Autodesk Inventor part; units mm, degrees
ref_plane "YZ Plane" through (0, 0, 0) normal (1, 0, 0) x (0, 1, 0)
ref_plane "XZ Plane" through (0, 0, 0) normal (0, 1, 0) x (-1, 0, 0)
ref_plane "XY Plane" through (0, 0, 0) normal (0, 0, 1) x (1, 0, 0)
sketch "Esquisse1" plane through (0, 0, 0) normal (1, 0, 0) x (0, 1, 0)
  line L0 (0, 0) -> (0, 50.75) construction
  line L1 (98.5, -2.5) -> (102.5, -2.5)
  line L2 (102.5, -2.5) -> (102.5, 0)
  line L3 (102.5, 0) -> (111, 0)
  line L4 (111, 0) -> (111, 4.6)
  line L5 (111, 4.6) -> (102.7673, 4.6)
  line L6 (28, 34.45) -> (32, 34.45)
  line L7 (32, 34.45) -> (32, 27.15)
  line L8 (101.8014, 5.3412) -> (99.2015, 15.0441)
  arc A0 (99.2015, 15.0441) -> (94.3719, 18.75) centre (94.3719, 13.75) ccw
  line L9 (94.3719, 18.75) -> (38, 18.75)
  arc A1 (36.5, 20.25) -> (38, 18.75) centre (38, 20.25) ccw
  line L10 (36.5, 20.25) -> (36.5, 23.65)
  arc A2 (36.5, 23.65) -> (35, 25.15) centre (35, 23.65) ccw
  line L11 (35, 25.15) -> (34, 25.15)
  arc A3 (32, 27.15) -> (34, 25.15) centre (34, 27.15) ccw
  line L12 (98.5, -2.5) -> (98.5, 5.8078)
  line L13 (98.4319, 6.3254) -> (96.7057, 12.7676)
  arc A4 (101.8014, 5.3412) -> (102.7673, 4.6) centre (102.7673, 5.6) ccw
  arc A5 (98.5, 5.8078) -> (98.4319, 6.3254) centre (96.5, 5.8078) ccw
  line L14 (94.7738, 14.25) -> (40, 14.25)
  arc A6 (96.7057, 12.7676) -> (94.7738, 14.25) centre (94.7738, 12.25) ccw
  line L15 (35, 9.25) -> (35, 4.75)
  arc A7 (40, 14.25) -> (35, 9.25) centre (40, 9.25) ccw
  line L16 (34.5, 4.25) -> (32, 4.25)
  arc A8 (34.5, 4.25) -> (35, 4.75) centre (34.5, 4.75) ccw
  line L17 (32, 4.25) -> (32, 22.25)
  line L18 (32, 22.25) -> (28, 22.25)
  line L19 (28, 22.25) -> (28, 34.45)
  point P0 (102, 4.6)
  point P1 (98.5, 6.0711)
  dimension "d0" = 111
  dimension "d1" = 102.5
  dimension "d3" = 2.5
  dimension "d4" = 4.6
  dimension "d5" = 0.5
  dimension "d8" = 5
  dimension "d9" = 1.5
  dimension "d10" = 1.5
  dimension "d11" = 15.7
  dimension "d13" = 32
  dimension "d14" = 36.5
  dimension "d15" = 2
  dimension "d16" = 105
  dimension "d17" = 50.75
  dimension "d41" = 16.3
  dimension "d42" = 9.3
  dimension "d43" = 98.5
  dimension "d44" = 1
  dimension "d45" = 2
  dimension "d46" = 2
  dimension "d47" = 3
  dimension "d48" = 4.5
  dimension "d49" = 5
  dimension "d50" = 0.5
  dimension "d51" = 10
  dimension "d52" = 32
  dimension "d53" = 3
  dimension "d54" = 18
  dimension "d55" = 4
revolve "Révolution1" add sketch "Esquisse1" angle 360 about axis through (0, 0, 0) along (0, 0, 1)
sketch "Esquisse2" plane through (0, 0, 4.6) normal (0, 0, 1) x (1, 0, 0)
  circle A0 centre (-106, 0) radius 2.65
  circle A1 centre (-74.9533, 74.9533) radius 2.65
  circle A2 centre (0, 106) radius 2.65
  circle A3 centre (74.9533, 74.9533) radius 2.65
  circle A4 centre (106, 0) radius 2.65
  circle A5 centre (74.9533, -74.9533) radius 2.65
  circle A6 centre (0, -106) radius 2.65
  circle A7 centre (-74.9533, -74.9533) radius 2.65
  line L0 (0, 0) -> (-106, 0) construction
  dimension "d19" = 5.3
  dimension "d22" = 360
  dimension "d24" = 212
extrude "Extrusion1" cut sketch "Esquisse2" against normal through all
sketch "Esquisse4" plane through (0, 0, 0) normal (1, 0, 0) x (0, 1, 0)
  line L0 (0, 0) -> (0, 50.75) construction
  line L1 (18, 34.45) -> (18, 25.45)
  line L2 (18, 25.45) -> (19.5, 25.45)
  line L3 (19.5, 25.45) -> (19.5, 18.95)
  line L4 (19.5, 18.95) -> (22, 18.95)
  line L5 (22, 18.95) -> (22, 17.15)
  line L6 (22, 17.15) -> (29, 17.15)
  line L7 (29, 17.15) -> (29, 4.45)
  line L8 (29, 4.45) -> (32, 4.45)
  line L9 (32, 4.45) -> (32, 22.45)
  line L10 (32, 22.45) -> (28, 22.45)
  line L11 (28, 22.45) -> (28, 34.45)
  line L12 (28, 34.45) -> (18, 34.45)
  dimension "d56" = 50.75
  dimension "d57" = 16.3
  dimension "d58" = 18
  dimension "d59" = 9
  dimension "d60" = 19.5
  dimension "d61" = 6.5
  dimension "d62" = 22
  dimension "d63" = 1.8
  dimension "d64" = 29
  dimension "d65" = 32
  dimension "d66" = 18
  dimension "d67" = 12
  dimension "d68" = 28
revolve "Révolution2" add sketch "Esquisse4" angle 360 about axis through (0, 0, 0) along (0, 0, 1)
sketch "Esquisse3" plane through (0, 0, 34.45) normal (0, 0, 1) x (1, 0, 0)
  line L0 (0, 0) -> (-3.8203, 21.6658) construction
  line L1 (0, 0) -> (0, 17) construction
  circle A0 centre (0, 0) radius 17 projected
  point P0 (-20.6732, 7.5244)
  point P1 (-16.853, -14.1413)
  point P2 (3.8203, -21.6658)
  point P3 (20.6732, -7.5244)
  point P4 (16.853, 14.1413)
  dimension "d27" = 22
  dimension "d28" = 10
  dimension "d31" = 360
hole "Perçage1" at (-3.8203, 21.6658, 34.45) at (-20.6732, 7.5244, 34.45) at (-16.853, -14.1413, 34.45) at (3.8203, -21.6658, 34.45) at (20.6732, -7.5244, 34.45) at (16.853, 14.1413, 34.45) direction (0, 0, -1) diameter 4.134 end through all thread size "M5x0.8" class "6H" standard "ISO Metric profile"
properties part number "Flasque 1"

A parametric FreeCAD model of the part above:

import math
import FreeCAD as App
import Part
import Sketcher

V = App.Vector
Q = App.Units.Quantity


def add_polygon(sketch, points):
    """Adds a closed chain of lines whose ends are joined by coincident constraints."""
    first, n = sketch.GeometryCount, len(points)
    for a, b in zip(points, points[1:] + points[:1]):
        sketch.addGeometry(Part.LineSegment(App.Vector(*a, 0), App.Vector(*b, 0)), False)
    for i in range(n):
        sketch.addConstraint(Sketcher.Constraint("Coincident", first + i, 2, first + (i + 1) % n, 1))

doc = App.newDocument("Part")
params = doc.addObject("Spreadsheet::Sheet", "Params")
for row, (alias, value) in enumerate([
    ("sketch1_radius", "1 mm"),
    ("sketch1_radius2", "5 mm"),
    ("sketch1_radius3", "2 mm"),
    ("sketch1_radius4", "1.5 mm"),
    ("sketch1_radius5", "0.5 mm"),
    ("revolution_angle", "360 deg"),
    ("sketch2_diameter", "5.3 mm"),
    ("sketch3_height", "9 mm"),
    ("sketch3_height2", "18 mm"),
    ("sketch3_height3", "12 mm"),
    ("sketch3_height4", "6.5 mm"),
    ("sketch3_height5", "1.8 mm"),
    ("revolution2_angle", "360 deg"),
    ("hole_diameter", "4.134 mm"),
], start=1):
    params.set(f"A{row}", alias)
    params.set(f"B{row}", "=" + value)
    params.setAlias(f"B{row}", alias)

body = doc.addObject("PartDesign::Body", "Body")

# Sketch on YZ plane
sketch1 = doc.addObject("Sketcher::SketchObject", "Sketch")
body.addObject(sketch1)
sketch1.AttachmentSupport = (doc.YZ_Plane, [""])
sketch1.MapMode = "FlatFace"
sketch1.addGeometry(Part.LineSegment(V(98.5, 5.8078, 0), V(98.5, -2.5, 0)), False)
sketch1.addGeometry(Part.LineSegment(V(98.5, -2.5, 0), V(102.5, -2.5, 0)), False)
sketch1.addGeometry(Part.LineSegment(V(102.5, -2.5, 0), V(102.5, 0, 0)), False)
sketch1.addGeometry(Part.LineSegment(V(102.5, 0, 0), V(111, 0, 0)), False)
sketch1.addGeometry(Part.LineSegment(V(111, 0, 0), V(111, 4.6, 0)), False)
sketch1.addGeometry(Part.LineSegment(V(111, 4.6, 0), V(102.7673, 4.6, 0)), False)
sketch1.addGeometry(Part.ArcOfCircle(Part.Circle(V(102.7673, 5.6, 0), V(0, 0, 1), 0.99997), math.radians(-165.000671), math.radians(-90)), False)
sketch1.addGeometry(Part.LineSegment(V(101.8014, 5.3412, 0), V(99.2015, 15.0441, 0)), False)
sketch1.addGeometry(Part.ArcOfCircle(Part.Circle(V(94.3719, 13.75, 0), V(0, 0, 1), 4.999973), math.radians(15.000139), math.radians(90)), False)
sketch1.addGeometry(Part.LineSegment(V(94.3719, 18.75, 0), V(38, 18.75, 0)), False)
sketch1.addGeometry(Part.ArcOfCircle(Part.Circle(V(38, 20.25, 0), V(0, 0, 1), 1.5), math.radians(180), math.radians(270)), False)
sketch1.addGeometry(Part.LineSegment(V(36.5, 20.25, 0), V(36.5, 23.65, 0)), False)
sketch1.addGeometry(Part.ArcOfCircle(Part.Circle(V(35, 23.65, 0), V(0, 0, 1), 1.5), math.radians(0), math.radians(90)), False)
sketch1.addGeometry(Part.LineSegment(V(35, 25.15, 0), V(34, 25.15, 0)), False)
sketch1.addGeometry(Part.ArcOfCircle(Part.Circle(V(34, 27.15, 0), V(0, 0, 1), 2), math.radians(180), math.radians(270)), False)
sketch1.addGeometry(Part.LineSegment(V(32, 27.15, 0), V(32, 34.45, 0)), False)
sketch1.addGeometry(Part.LineSegment(V(32, 34.45, 0), V(28, 34.45, 0)), False)
sketch1.addGeometry(Part.LineSegment(V(28, 34.45, 0), V(28, 22.25, 0)), False)
sketch1.addGeometry(Part.LineSegment(V(28, 22.25, 0), V(32, 22.25, 0)), False)
sketch1.addGeometry(Part.LineSegment(V(32, 22.25, 0), V(32, 4.25, 0)), False)
sketch1.addGeometry(Part.LineSegment(V(32, 4.25, 0), V(34.5, 4.25, 0)), False)
sketch1.addGeometry(Part.ArcOfCircle(Part.Circle(V(34.5, 4.75, 0), V(0, 0, 1), 0.5), math.radians(-90), math.radians(0)), False)
sketch1.addGeometry(Part.LineSegment(V(35, 4.75, 0), V(35, 9.25, 0)), False)
sketch1.addGeometry(Part.ArcOfCircle(Part.Circle(V(40, 9.25, 0), V(0, 0, 1), 5), math.radians(90), math.radians(180)), False)
sketch1.addGeometry(Part.LineSegment(V(40, 14.25, 0), V(94.7738, 14.25, 0)), False)
sketch1.addGeometry(Part.ArcOfCircle(Part.Circle(V(94.7738, 12.25, 0), V(0, 0, 1), 2.000037), math.radians(14.998588), math.radians(90)), False)
sketch1.addGeometry(Part.LineSegment(V(96.7057, 12.7676, 0), V(98.4319, 6.3254, 0)), False)
sketch1.addGeometry(Part.ArcOfCircle(Part.Circle(V(96.497844, 5.807659, 0), V(0, 0, 1), 2.002156), math.radians(0.004043), math.radians(14.986526)), False)
sketch1.addConstraint(Sketcher.Constraint("Coincident", 0, 2, 1, 1))
sketch1.addConstraint(Sketcher.Constraint("Coincident", 1, 2, 2, 1))
sketch1.addConstraint(Sketcher.Constraint("Coincident", 2, 2, 3, 1))
sketch1.addConstraint(Sketcher.Constraint("Coincident", 3, 2, 4, 1))
sketch1.addConstraint(Sketcher.Constraint("Coincident", 4, 2, 5, 1))
sketch1.addConstraint(Sketcher.Constraint("Tangent", 5, 2, 6, 2))
sketch1.addConstraint(Sketcher.Constraint("Tangent", 6, 1, 7, 1))
sketch1.addConstraint(Sketcher.Constraint("Tangent", 7, 2, 8, 1))
sketch1.addConstraint(Sketcher.Constraint("Tangent", 8, 2, 9, 1))
sketch1.addConstraint(Sketcher.Constraint("Tangent", 9, 2, 10, 2))
sketch1.addConstraint(Sketcher.Constraint("Tangent", 10, 1, 11, 1))
sketch1.addConstraint(Sketcher.Constraint("Tangent", 11, 2, 12, 1))
sketch1.addConstraint(Sketcher.Constraint("Tangent", 12, 2, 13, 1))
sketch1.addConstraint(Sketcher.Constraint("Tangent", 13, 2, 14, 2))
sketch1.addConstraint(Sketcher.Constraint("Tangent", 14, 1, 15, 1))
sketch1.addConstraint(Sketcher.Constraint("Coincident", 15, 2, 16, 1))
sketch1.addConstraint(Sketcher.Constraint("Coincident", 16, 2, 17, 1))
sketch1.addConstraint(Sketcher.Constraint("Coincident", 17, 2, 18, 1))
sketch1.addConstraint(Sketcher.Constraint("Coincident", 18, 2, 19, 1))
sketch1.addConstraint(Sketcher.Constraint("Coincident", 19, 2, 20, 1))
sketch1.addConstraint(Sketcher.Constraint("Tangent", 20, 2, 21, 1))
sketch1.addConstraint(Sketcher.Constraint("Tangent", 21, 2, 22, 1))
sketch1.addConstraint(Sketcher.Constraint("Tangent", 22, 2, 23, 2))
sketch1.addConstraint(Sketcher.Constraint("Tangent", 23, 1, 24, 1))
sketch1.addConstraint(Sketcher.Constraint("Tangent", 24, 2, 25, 2))
sketch1.addConstraint(Sketcher.Constraint("Tangent", 25, 1, 26, 1))
sketch1.addConstraint(Sketcher.Constraint("Tangent", 26, 2, 27, 2))
sketch1.addConstraint(Sketcher.Constraint("Tangent", 27, 1, 0, 1))
sketch1.addConstraint(Sketcher.Constraint("Vertical", 0))
sketch1.addConstraint(Sketcher.Constraint("Horizontal", 1))
sketch1.addConstraint(Sketcher.Constraint("Vertical", 2))
sketch1.addConstraint(Sketcher.Constraint("Horizontal", 3))
sketch1.addConstraint(Sketcher.Constraint("Vertical", 4))
sketch1.addConstraint(Sketcher.Constraint("Horizontal", 5))
sketch1.addConstraint(Sketcher.Constraint("Horizontal", 9))
sketch1.addConstraint(Sketcher.Constraint("Vertical", 11))
sketch1.addConstraint(Sketcher.Constraint("Horizontal", 13))
sketch1.addConstraint(Sketcher.Constraint("Vertical", 15))
sketch1.addConstraint(Sketcher.Constraint("Horizontal", 16))
sketch1.addConstraint(Sketcher.Constraint("Vertical", 17))
sketch1.addConstraint(Sketcher.Constraint("Horizontal", 18))
sketch1.addConstraint(Sketcher.Constraint("Vertical", 19))
sketch1.addConstraint(Sketcher.Constraint("Horizontal", 20))
sketch1.addConstraint(Sketcher.Constraint("Vertical", 22))
sketch1.addConstraint(Sketcher.Constraint("Horizontal", 24))
sketch1.addConstraint(Sketcher.Constraint("Equal", 10, 12))
sketch1.addConstraint(Sketcher.Constraint("Equal", 8, 23))
sketch1.addConstraint(Sketcher.Constraint("Equal", 14, 25))
sketch1.addConstraint(Sketcher.Constraint("PointOnObject", 2, 2, -1))
sketch1.addConstraint(Sketcher.Constraint("Parallel", 7, 26))
sketch1.addConstraint(Sketcher.Constraint("Vertical", 15, 2, 18, 2))
sketch1.addConstraint(Sketcher.Constraint("Vertical", 12, 2, 21, 2))
sketch1.addConstraint(Sketcher.Constraint("Equal", 1, 16))
sketch1.addConstraint(Sketcher.Constraint("Equal", 20, 2))
sketch1.addConstraint(Sketcher.Constraint("Radius", 6, Q("1 mm")))
sketch1.addConstraint(Sketcher.Constraint("Radius", 8, Q("5 mm")))
sketch1.addConstraint(Sketcher.Constraint("Radius", 14, Q("2 mm")))
sketch1.addConstraint(Sketcher.Constraint("Radius", 10, Q("1.5 mm")))
sketch1.addConstraint(Sketcher.Constraint("Radius", 21, Q("0.5 mm")))
sketch1.addConstraint(Sketcher.Constraint("DistanceX", 1, 1, 1, 2, Q("4 mm")))
sketch1.addConstraint(Sketcher.Constraint("DistanceX", 13, 2, 13, 1, Q("1 mm")))
sketch1.addConstraint(Sketcher.Constraint("DistanceY", 19, 2, 19, 1, Q("18 mm")))
sketch1.addConstraint(Sketcher.Constraint("Angle", 7, Q("105 deg")))
sketch1.addConstraint(Sketcher.Constraint("DistanceY", 4, 1, 4, 2, Q("4.6 mm")))
sketch1.addConstraint(Sketcher.Constraint("DistanceY", 22, 1, 22, 2, Q("4.5 mm")))
sketch1.addConstraint(Sketcher.Constraint("DistanceX", -1, 1, 3, 2, Q("111 mm")))
sketch1.addConstraint(Sketcher.Constraint("DistanceX", -1, 1, 14, 1, Q("32 mm")))
sketch1.addConstraint(Sketcher.Constraint("DistanceX", -1, 1, 0, 2, Q("98.5 mm")))
sketch1.addConstraint(Sketcher.Constraint("DistanceY", 23, 3, 8, 3, Q("4.5 mm")))
sketch1.addConstraint(Sketcher.Constraint("DistanceY", 13, 2, 15, 2, Q("9.3 mm")))
sketch1.addConstraint(Sketcher.Constraint("DistanceY", 11, 1, 11, 2, Q("3.4 mm")))
sketch1.addConstraint(Sketcher.Constraint("Radius", 27, Q("2.0022 mm")))
sketch1.addConstraint(Sketcher.Constraint("DistanceX", 7, 2, 6, 1, Q("2.6 mm")))
sketch1.addConstraint(Sketcher.Constraint("DistanceX", 9, 2, 9, 1, Q("56.372 mm")))
sketch1.addConstraint(Sketcher.Constraint("DistanceX", 24, 1, 24, 2, Q("54.7738 mm")))
sketch1.setExpression("Constraints[54]", "Params.sketch1_radius")
sketch1.setExpression("Constraints[55]", "Params.sketch1_radius2")
sketch1.setExpression("Constraints[56]", "Params.sketch1_radius3")
sketch1.setExpression("Constraints[57]", "Params.sketch1_radius4")
sketch1.setExpression("Constraints[58]", "Params.sketch1_radius5")
revolution = doc.addObject("PartDesign::Revolution", "Revolution")
body.addObject(revolution)
revolution.Profile = sketch1
revolution.ReferenceAxis = (sketch1, ["V_Axis"])
revolution.setExpression("Angle", "Params.revolution_angle")

# Sketch on XY plane
sketch2 = doc.addObject("Sketcher::SketchObject", "Sketch001")
body.addObject(sketch2)
sketch2.AttachmentSupport = (doc.XY_Plane, [""])
sketch2.MapMode = "FlatFace"
sketch2.AttachmentOffset = App.Placement(V(0, 0, 4.6), App.Rotation())
sketch2.addGeometry(Part.Circle(V(-106, 0, 0), V(0, 0, 1), 2.65), False)
sketch2.addGeometry(Part.Circle(V(-74.9533, 74.9533, 0), V(0, 0, 1), 2.65), False)
sketch2.addGeometry(Part.Circle(V(0, 106, 0), V(0, 0, 1), 2.65), False)
sketch2.addGeometry(Part.Circle(V(74.9533, 74.9533, 0), V(0, 0, 1), 2.65), False)
sketch2.addGeometry(Part.Circle(V(106, 0, 0), V(0, 0, 1), 2.65), False)
sketch2.addGeometry(Part.Circle(V(74.9533, -74.9533, 0), V(0, 0, 1), 2.65), False)
sketch2.addGeometry(Part.Circle(V(0, -106, 0), V(0, 0, 1), 2.65), False)
sketch2.addGeometry(Part.Circle(V(-74.9533, -74.9533, 0), V(0, 0, 1), 2.65), False)
sketch2.addConstraint(Sketcher.Constraint("Equal", 0, 1))
sketch2.addConstraint(Sketcher.Constraint("Equal", 1, 2))
sketch2.addConstraint(Sketcher.Constraint("Equal", 2, 3))
sketch2.addConstraint(Sketcher.Constraint("Equal", 3, 4))
sketch2.addConstraint(Sketcher.Constraint("Equal", 4, 5))
sketch2.addConstraint(Sketcher.Constraint("Equal", 5, 6))
sketch2.addConstraint(Sketcher.Constraint("Equal", 6, 7))
sketch2.addConstraint(Sketcher.Constraint("Symmetric", 0, 3, 4, 3, -1, 1))
sketch2.addConstraint(Sketcher.Constraint("Symmetric", 1, 3, 5, 3, -1, 1))
sketch2.addConstraint(Sketcher.Constraint("Symmetric", 2, 3, 6, 3, -1, 1))
sketch2.addConstraint(Sketcher.Constraint("Symmetric", 3, 3, 7, 3, -1, 1))
sketch2.addConstraint(Sketcher.Constraint("Symmetric", 1, 3, 3, 3, -2))
sketch2.addConstraint(Sketcher.Constraint("PointOnObject", 0, 3, -1))
sketch2.addConstraint(Sketcher.Constraint("PointOnObject", 2, 3, -2))
sketch2.addConstraint(Sketcher.Constraint("Diameter", 0, Q("5.3 mm")))
sketch2.addConstraint(Sketcher.Constraint("DistanceX", 0, 3, 4, 3, Q("212 mm")))
sketch2.addConstraint(Sketcher.Constraint("DistanceY", -1, 1, 2, 3, Q("106 mm")))
sketch2.addConstraint(Sketcher.Constraint("DistanceX", 1, 3, -1, 1, Q("74.9533 mm")))
sketch2.addConstraint(Sketcher.Constraint("DistanceY", -1, 1, 1, 3, Q("74.9533 mm")))
sketch2.setExpression("Constraints[14]", "Params.sketch2_diameter")
pocket1 = doc.addObject("PartDesign::Pocket", "Pocket")
body.addObject(pocket1)
pocket1.Profile = sketch2
pocket1.Type = "ThroughAll"

# Sketch on YZ plane
sketch3 = doc.addObject("Sketcher::SketchObject", "Sketch002")
body.addObject(sketch3)
sketch3.AttachmentSupport = (doc.YZ_Plane, [""])
sketch3.MapMode = "FlatFace"
add_polygon(sketch3, [(28, 34.45), (18, 34.45), (18, 25.45), (19.5, 25.45), (19.5, 18.95), (22, 18.95), (22, 17.15), (29, 17.15), (29, 4.45), (32, 4.45), (32, 22.45), (28, 22.45)])  # lines 0-11
sketch3.addConstraint(Sketcher.Constraint("Horizontal", 0))
sketch3.addConstraint(Sketcher.Constraint("Vertical", 1))
sketch3.addConstraint(Sketcher.Constraint("Horizontal", 2))
sketch3.addConstraint(Sketcher.Constraint("Vertical", 3))
sketch3.addConstraint(Sketcher.Constraint("Horizontal", 4))
sketch3.addConstraint(Sketcher.Constraint("Vertical", 5))
sketch3.addConstraint(Sketcher.Constraint("Horizontal", 6))
sketch3.addConstraint(Sketcher.Constraint("Vertical", 7))
sketch3.addConstraint(Sketcher.Constraint("Horizontal", 8))
sketch3.addConstraint(Sketcher.Constraint("Vertical", 9))
sketch3.addConstraint(Sketcher.Constraint("Horizontal", 10))
sketch3.addConstraint(Sketcher.Constraint("Vertical", 11))
sketch3.addConstraint(Sketcher.Constraint("DistanceY", 1, 2, 1, 1, Q("9 mm")))
sketch3.addConstraint(Sketcher.Constraint("DistanceY", 9, 1, 9, 2, Q("18 mm")))
sketch3.addConstraint(Sketcher.Constraint("DistanceY", 11, 1, 11, 2, Q("12 mm")))
sketch3.addConstraint(Sketcher.Constraint("DistanceY", 3, 2, 3, 1, Q("6.5 mm")))
sketch3.addConstraint(Sketcher.Constraint("DistanceY", 5, 2, 5, 1, Q("1.8 mm")))
sketch3.addConstraint(Sketcher.Constraint("DistanceX", -1, 1, 0, 2, Q("18 mm")))
sketch3.addConstraint(Sketcher.Constraint("DistanceX", -1, 1, 4, 2, Q("22 mm")))
sketch3.addConstraint(Sketcher.Constraint("DistanceX", -1, 1, 6, 2, Q("29 mm")))
sketch3.addConstraint(Sketcher.Constraint("DistanceX", -1, 1, 8, 2, Q("32 mm")))
sketch3.addConstraint(Sketcher.Constraint("DistanceX", -1, 1, 10, 2, Q("28 mm")))
sketch3.addConstraint(Sketcher.Constraint("DistanceX", -1, 1, 2, 2, Q("19.5 mm")))
sketch3.addConstraint(Sketcher.Constraint("DistanceY", -1, 1, 0, 2, Q("34.45 mm")))
sketch3.setExpression("Constraints[24]", "Params.sketch3_height")
sketch3.setExpression("Constraints[25]", "Params.sketch3_height2")
sketch3.setExpression("Constraints[26]", "Params.sketch3_height3")
sketch3.setExpression("Constraints[27]", "Params.sketch3_height4")
sketch3.setExpression("Constraints[28]", "Params.sketch3_height5")
revolution2 = doc.addObject("PartDesign::Revolution", "Revolution001")
body.addObject(revolution2)
revolution2.Profile = sketch3
revolution2.ReferenceAxis = (sketch3, ["V_Axis"])
revolution2.setExpression("Angle", "Params.revolution2_angle")

# Sketch on XY plane
sketch4 = doc.addObject("Sketcher::SketchObject", "Sketch003")
body.addObject(sketch4)
sketch4.AttachmentSupport = (doc.XY_Plane, [""])
sketch4.MapMode = "FlatFace"
sketch4.AttachmentOffset = App.Placement(V(0, 0, 34.45), App.Rotation())
sketch4.addGeometry(Part.Circle(V(-3.8203, 21.6658, 0), V(0, 0, 1), 2.067), False)
sketch4.addGeometry(Part.Circle(V(-20.6732, 7.5244, 0), V(0, 0, 1), 2.067), False)
sketch4.addGeometry(Part.Circle(V(-16.853, -14.1413, 0), V(0, 0, 1), 2.067), False)
sketch4.addGeometry(Part.Circle(V(3.8203, -21.6658, 0), V(0, 0, 1), 2.067), False)
sketch4.addGeometry(Part.Circle(V(20.6732, -7.5244, 0), V(0, 0, 1), 2.067), False)
sketch4.addGeometry(Part.Circle(V(16.853, 14.1413, 0), V(0, 0, 1), 2.067), False)
sketch4.addConstraint(Sketcher.Constraint("Equal", 0, 1))
sketch4.addConstraint(Sketcher.Constraint("Equal", 1, 2))
sketch4.addConstraint(Sketcher.Constraint("Equal", 2, 3))
sketch4.addConstraint(Sketcher.Constraint("Equal", 3, 4))
sketch4.addConstraint(Sketcher.Constraint("Equal", 4, 5))
sketch4.addConstraint(Sketcher.Constraint("Symmetric", 0, 3, 3, 3, -1, 1))
sketch4.addConstraint(Sketcher.Constraint("Symmetric", 1, 3, 4, 3, -1, 1))
sketch4.addConstraint(Sketcher.Constraint("Symmetric", 2, 3, 5, 3, -1, 1))
sketch4.addConstraint(Sketcher.Constraint("Diameter", 0, Q("4.134 mm")))
sketch4.addConstraint(Sketcher.Constraint("DistanceX", 2, 3, -1, 1, Q("16.853 mm")))
sketch4.addConstraint(Sketcher.Constraint("DistanceX", 1, 3, 0, 3, Q("16.853 mm")))
sketch4.addConstraint(Sketcher.Constraint("DistanceY", 2, 3, 0, 3, Q("35.807 mm")))
sketch4.addConstraint(Sketcher.Constraint("DistanceY", 2, 3, 4, 3, Q("6.617 mm")))
sketch4.addConstraint(Sketcher.Constraint("DistanceX", 0, 3, -1, 1, Q("3.8203 mm")))
sketch4.addConstraint(Sketcher.Constraint("DistanceY", -1, 1, 0, 3, Q("21.6658 mm")))
doc.recompute()
hole = doc.addObject("PartDesign::Hole", "Hole")
body.addObject(hole)
hole.Profile = sketch4
hole.ThreadType = "None"
hole.setExpression("Diameter", "Params.hole_diameter")
hole.DepthType = "ThroughAll"

doc.recompute()
